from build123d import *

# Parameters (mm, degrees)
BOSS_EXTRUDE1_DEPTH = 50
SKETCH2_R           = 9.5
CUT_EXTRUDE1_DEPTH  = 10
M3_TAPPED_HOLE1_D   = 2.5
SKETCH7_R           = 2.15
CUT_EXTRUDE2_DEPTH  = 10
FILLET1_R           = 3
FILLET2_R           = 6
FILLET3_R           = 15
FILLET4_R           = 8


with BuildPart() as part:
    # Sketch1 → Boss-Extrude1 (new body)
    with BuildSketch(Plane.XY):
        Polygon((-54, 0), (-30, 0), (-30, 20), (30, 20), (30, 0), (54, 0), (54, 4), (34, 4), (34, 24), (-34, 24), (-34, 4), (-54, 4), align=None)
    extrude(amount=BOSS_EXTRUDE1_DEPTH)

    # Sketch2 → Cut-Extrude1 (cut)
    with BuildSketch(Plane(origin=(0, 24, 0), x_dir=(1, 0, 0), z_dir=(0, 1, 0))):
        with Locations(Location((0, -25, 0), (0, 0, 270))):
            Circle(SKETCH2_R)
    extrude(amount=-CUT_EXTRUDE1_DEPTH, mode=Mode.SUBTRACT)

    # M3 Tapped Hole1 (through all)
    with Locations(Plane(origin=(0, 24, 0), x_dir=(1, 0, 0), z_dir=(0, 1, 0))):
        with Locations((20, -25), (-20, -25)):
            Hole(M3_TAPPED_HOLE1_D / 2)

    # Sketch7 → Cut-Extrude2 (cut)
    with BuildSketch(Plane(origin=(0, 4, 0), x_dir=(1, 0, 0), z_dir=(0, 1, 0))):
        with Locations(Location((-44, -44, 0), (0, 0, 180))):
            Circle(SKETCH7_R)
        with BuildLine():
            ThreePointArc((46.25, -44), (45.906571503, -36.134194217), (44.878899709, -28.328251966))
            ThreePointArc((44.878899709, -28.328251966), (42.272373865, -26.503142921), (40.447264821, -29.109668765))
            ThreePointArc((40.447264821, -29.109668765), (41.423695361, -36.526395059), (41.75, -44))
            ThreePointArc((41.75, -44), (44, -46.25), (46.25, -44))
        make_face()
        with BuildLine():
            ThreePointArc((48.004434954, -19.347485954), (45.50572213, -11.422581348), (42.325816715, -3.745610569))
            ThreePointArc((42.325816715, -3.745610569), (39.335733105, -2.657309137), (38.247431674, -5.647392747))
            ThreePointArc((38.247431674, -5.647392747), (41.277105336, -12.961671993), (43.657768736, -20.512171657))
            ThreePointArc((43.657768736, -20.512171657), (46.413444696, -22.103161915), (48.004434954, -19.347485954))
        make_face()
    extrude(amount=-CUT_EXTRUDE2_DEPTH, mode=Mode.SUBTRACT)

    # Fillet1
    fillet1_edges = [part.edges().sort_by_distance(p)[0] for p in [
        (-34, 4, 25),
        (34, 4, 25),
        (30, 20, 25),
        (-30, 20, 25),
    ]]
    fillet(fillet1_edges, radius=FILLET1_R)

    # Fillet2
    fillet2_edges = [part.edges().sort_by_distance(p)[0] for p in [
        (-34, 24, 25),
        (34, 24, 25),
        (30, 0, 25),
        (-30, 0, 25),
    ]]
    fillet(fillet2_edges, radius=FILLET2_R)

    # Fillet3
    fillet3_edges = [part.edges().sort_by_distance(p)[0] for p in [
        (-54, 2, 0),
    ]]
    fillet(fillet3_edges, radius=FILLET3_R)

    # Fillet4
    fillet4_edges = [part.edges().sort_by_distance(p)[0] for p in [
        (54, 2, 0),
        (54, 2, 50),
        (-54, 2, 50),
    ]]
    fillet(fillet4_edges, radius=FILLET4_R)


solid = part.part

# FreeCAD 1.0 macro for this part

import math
import FreeCAD as App
import Part
import Sketcher


def edges_at(feature, points):
    """Names of the edges that pass closest to the given points."""
    edges = feature.Shape.Edges
    near = lambda p: min(range(len(edges)), key=lambda i: edges[i].distToShape(Part.Vertex(*p))[0])
    return sorted({f"Edge{near(p) + 1}" for p in points})


def add_polygon(sketch, points):
    """Adds a closed chain of lines whose ends are joined by coincident constraints."""
    first, n = sketch.GeometryCount, len(points)
    for a, b in zip(points, points[1:] + points[:1]):
        sketch.addGeometry(Part.LineSegment(App.Vector(*a, 0), App.Vector(*b, 0)), False)
    for i in range(n):
        sketch.addConstraint(Sketcher.Constraint("Coincident", first + i, 2, first + (i + 1) % n, 1))

doc = App.newDocument("Part")
body = doc.addObject("PartDesign::Body", "Body")

sketch1 = doc.addObject("Sketcher::SketchObject", "Sketch")
body.addObject(sketch1)
sketch1.AttachmentSupport = (doc.XY_Plane, [""])
sketch1.MapMode = "FlatFace"
add_polygon(sketch1, [(-54, 0), (-30, 0), (-30, 20), (30, 20), (30, 0), (54, 0), (54, 4), (34, 4), (34, 24), (-34, 24), (-34, 4), (-54, 4)])
sketch1.addConstraint(Sketcher.Constraint("Horizontal", 0))
sketch1.addConstraint(Sketcher.Constraint("Vertical", 1))
sketch1.addConstraint(Sketcher.Constraint("Horizontal", 2))
sketch1.addConstraint(Sketcher.Constraint("Vertical", 3))
sketch1.addConstraint(Sketcher.Constraint("Horizontal", 4))
sketch1.addConstraint(Sketcher.Constraint("Vertical", 5))
sketch1.addConstraint(Sketcher.Constraint("Horizontal", 6))
sketch1.addConstraint(Sketcher.Constraint("Vertical", 7))
sketch1.addConstraint(Sketcher.Constraint("Horizontal", 8))
sketch1.addConstraint(Sketcher.Constraint("Vertical", 9))
sketch1.addConstraint(Sketcher.Constraint("Horizontal", 10))
sketch1.addConstraint(Sketcher.Constraint("Vertical", 11))
sketch1.addConstraint(Sketcher.Constraint("Symmetric", 0, 2, 3, 2, -1, 1))
sketch1.addConstraint(Sketcher.Constraint("Symmetric", 6, 2, 9, 2, -2))
sketch1.addConstraint(Sketcher.Constraint("Symmetric", 4, 2, 11, 2, -2))
sketch1.addConstraint(Sketcher.Constraint("Equal", 10, 1))
sketch1.addConstraint(Sketcher.Constraint("Equal", 3, 7))
sketch1.addConstraint(Sketcher.Constraint("DistanceX", 0, 1, 0, 2, 24.0))
sketch1.addConstraint(Sketcher.Constraint("DistanceX", 2, 1, 2, 2, 60.0))
sketch1.addConstraint(Sketcher.Constraint("DistanceX", 6, 2, 6, 1, 20.0))
sketch1.addConstraint(Sketcher.Constraint("DistanceY", 5, 1, 5, 2, 4.0))
pad1 = doc.addObject("PartDesign::Pad", "Pad")
body.addObject(pad1)
pad1.Profile = sketch1
pad1.Length = 50

sketch2 = doc.addObject("Sketcher::SketchObject", "Sketch001")
body.addObject(sketch2)
sketch2.AttachmentSupport = (doc.XZ_Plane, [""])
sketch2.MapMode = "FlatFace"
sketch2.AttachmentOffset = App.Placement(App.Vector(0, 0, -24), App.Rotation())
sketch2.addGeometry(Part.Circle(App.Vector(0, 25, 0), App.Vector(0, 0, 1), 10), False)
sketch2.addConstraint(Sketcher.Constraint("PointOnObject", 0, 3, -2))
sketch2.addConstraint(Sketcher.Constraint("Diameter", 0, 19.0))
sketch2.addConstraint(Sketcher.Constraint("DistanceY", -1, 1, 0, 3, 25.0))
pocket1 = doc.addObject("PartDesign::Pocket", "Pocket")
body.addObject(pocket1)
pocket1.Profile = sketch2
pocket1.Length = 10
pocket1.Reversed = True

sketch3 = doc.addObject("Sketcher::SketchObject", "Sketch002")
body.addObject(sketch3)
sketch3.AttachmentSupport = (doc.XZ_Plane, [""])
sketch3.MapMode = "FlatFace"
sketch3.AttachmentOffset = App.Placement(App.Vector(0, 0, -24), App.Rotation())
sketch3.addGeometry(Part.Circle(App.Vector(20, 25, 0), App.Vector(0, 0, 1), 1.2), False)
sketch3.addGeometry(Part.Circle(App.Vector(-20, 25, 0), App.Vector(0, 0, 1), 1.2), False)
sketch3.addConstraint(Sketcher.Constraint("Equal", 0, 1))
sketch3.addConstraint(Sketcher.Constraint("Symmetric", 0, 3, 1, 3, -2))
sketch3.addConstraint(Sketcher.Constraint("Diameter", 0, 2.5))
sketch3.addConstraint(Sketcher.Constraint("DistanceX", -1, 1, 0, 3, 20.0))
sketch3.addConstraint(Sketcher.Constraint("DistanceY", -1, 1, 0, 3, 25.0))
doc.recompute()
hole = doc.addObject("PartDesign::Hole", "Hole")
body.addObject(hole)
hole.Profile = sketch3
hole.ThreadType = "None"
hole.Diameter = 2.5
hole.DepthType = "ThroughAll"
hole.Reversed = True

sketch4 = doc.addObject("Sketcher::SketchObject", "Sketch003")
body.addObject(sketch4)
sketch4.AttachmentSupport = (doc.XZ_Plane, [""])
sketch4.MapMode = "FlatFace"
sketch4.AttachmentOffset = App.Placement(App.Vector(0, 0, -4), App.Rotation())
sketch4.addGeometry(Part.Circle(App.Vector(-44, 44, 0), App.Vector(0, 0, 1), 2.1), False)
sketch4.addGeometry(Part.ArcOfCircle(Part.Circle(App.Vector(-44, 44, 0), App.Vector(0, 0, 1), 90.2), math.radians(-10), math.radians(0)), False)
sketch4.addGeometry(Part.ArcOfCircle(Part.Circle(App.Vector(42.7, 28.7, 0), App.Vector(0, 0, 1), 2.2), math.radians(170), math.radians(350)), False)
sketch4.addGeometry(Part.ArcOfCircle(Part.Circle(App.Vector(-44, 44, 0), App.Vector(0, 0, 1), 85.8), math.radians(-10), math.radians(0)), False)
sketch4.addGeometry(Part.ArcOfCircle(Part.Circle(App.Vector(44, 44, 0), App.Vector(0, 0, 1), 2.2), math.radians(0), math.radians(180)), False)
sketch4.addGeometry(Part.ArcOfCircle(Part.Circle(App.Vector(-44, 44, 0), App.Vector(0, 0, 1), 95.2), math.radians(-25), math.radians(-15)), False)
sketch4.addGeometry(Part.ArcOfCircle(Part.Circle(App.Vector(40.3, 4.7, 0), App.Vector(0, 0, 1), 2.2), math.radians(155), math.radians(335)), False)
sketch4.addGeometry(Part.ArcOfCircle(Part.Circle(App.Vector(-44, 44, 0), App.Vector(0, 0, 1), 90.8), math.radians(-25), math.radians(-15)), False)
sketch4.addGeometry(Part.ArcOfCircle(Part.Circle(App.Vector(45.8, 19.9, 0), App.Vector(0, 0, 1), 2.2), math.radians(-15), math.radians(165)), False)
sketch4.addConstraint(Sketcher.Constraint("Tangent", 1, 1, 2, 2))
sketch4.addConstraint(Sketcher.Constraint("Tangent", 2, 1, 3, 1))
sketch4.addConstraint(Sketcher.Constraint("Tangent", 3, 2, 4, 2))
sketch4.addConstraint(Sketcher.Constraint("Tangent", 4, 1, 1, 2))
sketch4.addConstraint(Sketcher.Constraint("Tangent", 5, 1, 6, 2))
sketch4.addConstraint(Sketcher.Constraint("Tangent", 6, 1, 7, 1))
sketch4.addConstraint(Sketcher.Constraint("Tangent", 7, 2, 8, 2))
sketch4.addConstraint(Sketcher.Constraint("Tangent", 8, 1, 5, 2))
sketch4.addConstraint(Sketcher.Constraint("Coincident", 1, 3, 0, 3))
sketch4.addConstraint(Sketcher.Constraint("Coincident", 3, 3, 0, 3))
sketch4.addConstraint(Sketcher.Constraint("Coincident", 5, 3, 0, 3))
sketch4.addConstraint(Sketcher.Constraint("Coincident", 7, 3, 0, 3))
sketch4.addConstraint(Sketcher.Constraint("Equal", 4, 6))
sketch4.addConstraint(Sketcher.Constraint("Symmetric", 0, 3, 4, 3, -2))
sketch4.addConstraint(Sketcher.Constraint("Diameter", 0, 4.3))
sketch4.addConstraint(Sketcher.Constraint("Radius", 1, 90.25))
sketch4.addConstraint(Sketcher.Constraint("Radius", 2, 2.25))
sketch4.addConstraint(Sketcher.Constraint("Radius", 5, 95.25))
sketch4.addConstraint(Sketcher.Constraint("DistanceY", -1, 1, 0, 3, 44.0))
sketch4.addConstraint(Sketcher.Constraint("DistanceY", -1, 1, 6, 3, 4.696502))
sketch4.addConstraint(Sketcher.Constraint("DistanceX", -1, 1, 8, 3, 45.831102))
sketch4.addConstraint(Sketcher.Constraint("DistanceX", -1, 1, 1, 1, 44.8789))
pocket2 = doc.addObject("PartDesign::Pocket", "Pocket001")
body.addObject(pocket2)
pocket2.Profile = sketch4
pocket2.Length = 10
pocket2.Reversed = True
doc.recompute()

fillet = doc.addObject("PartDesign::Fillet", "Fillet")
body.addObject(fillet)
fillet.Base = (pocket2, edges_at(pocket2, [
    (-34, 4, 25),
    (34, 4, 25),
    (30, 20, 25),
    (-30, 20, 25),
]))
fillet.Radius = 3
doc.recompute()

fillet2 = doc.addObject("PartDesign::Fillet", "Fillet001")
body.addObject(fillet2)
fillet2.Base = (fillet, edges_at(fillet, [
    (-34, 24, 25),
    (34, 24, 25),
    (30, 0, 25),
    (-30, 0, 25),
]))
fillet2.Radius = 6
doc.recompute()

fillet3 = doc.addObject("PartDesign::Fillet", "Fillet002")
body.addObject(fillet3)
fillet3.Base = (fillet2, edges_at(fillet2, [(-54, 2, 0)]))
fillet3.Radius = 15
doc.recompute()

fillet4 = doc.addObject("PartDesign::Fillet", "Fillet003")
body.addObject(fillet4)
fillet4.Base = (fillet3, edges_at(fillet3, [(54, 2, 0), (54, 2, 50), (-54, 2, 50)]))
fillet4.Radius = 8

doc.recompute()
